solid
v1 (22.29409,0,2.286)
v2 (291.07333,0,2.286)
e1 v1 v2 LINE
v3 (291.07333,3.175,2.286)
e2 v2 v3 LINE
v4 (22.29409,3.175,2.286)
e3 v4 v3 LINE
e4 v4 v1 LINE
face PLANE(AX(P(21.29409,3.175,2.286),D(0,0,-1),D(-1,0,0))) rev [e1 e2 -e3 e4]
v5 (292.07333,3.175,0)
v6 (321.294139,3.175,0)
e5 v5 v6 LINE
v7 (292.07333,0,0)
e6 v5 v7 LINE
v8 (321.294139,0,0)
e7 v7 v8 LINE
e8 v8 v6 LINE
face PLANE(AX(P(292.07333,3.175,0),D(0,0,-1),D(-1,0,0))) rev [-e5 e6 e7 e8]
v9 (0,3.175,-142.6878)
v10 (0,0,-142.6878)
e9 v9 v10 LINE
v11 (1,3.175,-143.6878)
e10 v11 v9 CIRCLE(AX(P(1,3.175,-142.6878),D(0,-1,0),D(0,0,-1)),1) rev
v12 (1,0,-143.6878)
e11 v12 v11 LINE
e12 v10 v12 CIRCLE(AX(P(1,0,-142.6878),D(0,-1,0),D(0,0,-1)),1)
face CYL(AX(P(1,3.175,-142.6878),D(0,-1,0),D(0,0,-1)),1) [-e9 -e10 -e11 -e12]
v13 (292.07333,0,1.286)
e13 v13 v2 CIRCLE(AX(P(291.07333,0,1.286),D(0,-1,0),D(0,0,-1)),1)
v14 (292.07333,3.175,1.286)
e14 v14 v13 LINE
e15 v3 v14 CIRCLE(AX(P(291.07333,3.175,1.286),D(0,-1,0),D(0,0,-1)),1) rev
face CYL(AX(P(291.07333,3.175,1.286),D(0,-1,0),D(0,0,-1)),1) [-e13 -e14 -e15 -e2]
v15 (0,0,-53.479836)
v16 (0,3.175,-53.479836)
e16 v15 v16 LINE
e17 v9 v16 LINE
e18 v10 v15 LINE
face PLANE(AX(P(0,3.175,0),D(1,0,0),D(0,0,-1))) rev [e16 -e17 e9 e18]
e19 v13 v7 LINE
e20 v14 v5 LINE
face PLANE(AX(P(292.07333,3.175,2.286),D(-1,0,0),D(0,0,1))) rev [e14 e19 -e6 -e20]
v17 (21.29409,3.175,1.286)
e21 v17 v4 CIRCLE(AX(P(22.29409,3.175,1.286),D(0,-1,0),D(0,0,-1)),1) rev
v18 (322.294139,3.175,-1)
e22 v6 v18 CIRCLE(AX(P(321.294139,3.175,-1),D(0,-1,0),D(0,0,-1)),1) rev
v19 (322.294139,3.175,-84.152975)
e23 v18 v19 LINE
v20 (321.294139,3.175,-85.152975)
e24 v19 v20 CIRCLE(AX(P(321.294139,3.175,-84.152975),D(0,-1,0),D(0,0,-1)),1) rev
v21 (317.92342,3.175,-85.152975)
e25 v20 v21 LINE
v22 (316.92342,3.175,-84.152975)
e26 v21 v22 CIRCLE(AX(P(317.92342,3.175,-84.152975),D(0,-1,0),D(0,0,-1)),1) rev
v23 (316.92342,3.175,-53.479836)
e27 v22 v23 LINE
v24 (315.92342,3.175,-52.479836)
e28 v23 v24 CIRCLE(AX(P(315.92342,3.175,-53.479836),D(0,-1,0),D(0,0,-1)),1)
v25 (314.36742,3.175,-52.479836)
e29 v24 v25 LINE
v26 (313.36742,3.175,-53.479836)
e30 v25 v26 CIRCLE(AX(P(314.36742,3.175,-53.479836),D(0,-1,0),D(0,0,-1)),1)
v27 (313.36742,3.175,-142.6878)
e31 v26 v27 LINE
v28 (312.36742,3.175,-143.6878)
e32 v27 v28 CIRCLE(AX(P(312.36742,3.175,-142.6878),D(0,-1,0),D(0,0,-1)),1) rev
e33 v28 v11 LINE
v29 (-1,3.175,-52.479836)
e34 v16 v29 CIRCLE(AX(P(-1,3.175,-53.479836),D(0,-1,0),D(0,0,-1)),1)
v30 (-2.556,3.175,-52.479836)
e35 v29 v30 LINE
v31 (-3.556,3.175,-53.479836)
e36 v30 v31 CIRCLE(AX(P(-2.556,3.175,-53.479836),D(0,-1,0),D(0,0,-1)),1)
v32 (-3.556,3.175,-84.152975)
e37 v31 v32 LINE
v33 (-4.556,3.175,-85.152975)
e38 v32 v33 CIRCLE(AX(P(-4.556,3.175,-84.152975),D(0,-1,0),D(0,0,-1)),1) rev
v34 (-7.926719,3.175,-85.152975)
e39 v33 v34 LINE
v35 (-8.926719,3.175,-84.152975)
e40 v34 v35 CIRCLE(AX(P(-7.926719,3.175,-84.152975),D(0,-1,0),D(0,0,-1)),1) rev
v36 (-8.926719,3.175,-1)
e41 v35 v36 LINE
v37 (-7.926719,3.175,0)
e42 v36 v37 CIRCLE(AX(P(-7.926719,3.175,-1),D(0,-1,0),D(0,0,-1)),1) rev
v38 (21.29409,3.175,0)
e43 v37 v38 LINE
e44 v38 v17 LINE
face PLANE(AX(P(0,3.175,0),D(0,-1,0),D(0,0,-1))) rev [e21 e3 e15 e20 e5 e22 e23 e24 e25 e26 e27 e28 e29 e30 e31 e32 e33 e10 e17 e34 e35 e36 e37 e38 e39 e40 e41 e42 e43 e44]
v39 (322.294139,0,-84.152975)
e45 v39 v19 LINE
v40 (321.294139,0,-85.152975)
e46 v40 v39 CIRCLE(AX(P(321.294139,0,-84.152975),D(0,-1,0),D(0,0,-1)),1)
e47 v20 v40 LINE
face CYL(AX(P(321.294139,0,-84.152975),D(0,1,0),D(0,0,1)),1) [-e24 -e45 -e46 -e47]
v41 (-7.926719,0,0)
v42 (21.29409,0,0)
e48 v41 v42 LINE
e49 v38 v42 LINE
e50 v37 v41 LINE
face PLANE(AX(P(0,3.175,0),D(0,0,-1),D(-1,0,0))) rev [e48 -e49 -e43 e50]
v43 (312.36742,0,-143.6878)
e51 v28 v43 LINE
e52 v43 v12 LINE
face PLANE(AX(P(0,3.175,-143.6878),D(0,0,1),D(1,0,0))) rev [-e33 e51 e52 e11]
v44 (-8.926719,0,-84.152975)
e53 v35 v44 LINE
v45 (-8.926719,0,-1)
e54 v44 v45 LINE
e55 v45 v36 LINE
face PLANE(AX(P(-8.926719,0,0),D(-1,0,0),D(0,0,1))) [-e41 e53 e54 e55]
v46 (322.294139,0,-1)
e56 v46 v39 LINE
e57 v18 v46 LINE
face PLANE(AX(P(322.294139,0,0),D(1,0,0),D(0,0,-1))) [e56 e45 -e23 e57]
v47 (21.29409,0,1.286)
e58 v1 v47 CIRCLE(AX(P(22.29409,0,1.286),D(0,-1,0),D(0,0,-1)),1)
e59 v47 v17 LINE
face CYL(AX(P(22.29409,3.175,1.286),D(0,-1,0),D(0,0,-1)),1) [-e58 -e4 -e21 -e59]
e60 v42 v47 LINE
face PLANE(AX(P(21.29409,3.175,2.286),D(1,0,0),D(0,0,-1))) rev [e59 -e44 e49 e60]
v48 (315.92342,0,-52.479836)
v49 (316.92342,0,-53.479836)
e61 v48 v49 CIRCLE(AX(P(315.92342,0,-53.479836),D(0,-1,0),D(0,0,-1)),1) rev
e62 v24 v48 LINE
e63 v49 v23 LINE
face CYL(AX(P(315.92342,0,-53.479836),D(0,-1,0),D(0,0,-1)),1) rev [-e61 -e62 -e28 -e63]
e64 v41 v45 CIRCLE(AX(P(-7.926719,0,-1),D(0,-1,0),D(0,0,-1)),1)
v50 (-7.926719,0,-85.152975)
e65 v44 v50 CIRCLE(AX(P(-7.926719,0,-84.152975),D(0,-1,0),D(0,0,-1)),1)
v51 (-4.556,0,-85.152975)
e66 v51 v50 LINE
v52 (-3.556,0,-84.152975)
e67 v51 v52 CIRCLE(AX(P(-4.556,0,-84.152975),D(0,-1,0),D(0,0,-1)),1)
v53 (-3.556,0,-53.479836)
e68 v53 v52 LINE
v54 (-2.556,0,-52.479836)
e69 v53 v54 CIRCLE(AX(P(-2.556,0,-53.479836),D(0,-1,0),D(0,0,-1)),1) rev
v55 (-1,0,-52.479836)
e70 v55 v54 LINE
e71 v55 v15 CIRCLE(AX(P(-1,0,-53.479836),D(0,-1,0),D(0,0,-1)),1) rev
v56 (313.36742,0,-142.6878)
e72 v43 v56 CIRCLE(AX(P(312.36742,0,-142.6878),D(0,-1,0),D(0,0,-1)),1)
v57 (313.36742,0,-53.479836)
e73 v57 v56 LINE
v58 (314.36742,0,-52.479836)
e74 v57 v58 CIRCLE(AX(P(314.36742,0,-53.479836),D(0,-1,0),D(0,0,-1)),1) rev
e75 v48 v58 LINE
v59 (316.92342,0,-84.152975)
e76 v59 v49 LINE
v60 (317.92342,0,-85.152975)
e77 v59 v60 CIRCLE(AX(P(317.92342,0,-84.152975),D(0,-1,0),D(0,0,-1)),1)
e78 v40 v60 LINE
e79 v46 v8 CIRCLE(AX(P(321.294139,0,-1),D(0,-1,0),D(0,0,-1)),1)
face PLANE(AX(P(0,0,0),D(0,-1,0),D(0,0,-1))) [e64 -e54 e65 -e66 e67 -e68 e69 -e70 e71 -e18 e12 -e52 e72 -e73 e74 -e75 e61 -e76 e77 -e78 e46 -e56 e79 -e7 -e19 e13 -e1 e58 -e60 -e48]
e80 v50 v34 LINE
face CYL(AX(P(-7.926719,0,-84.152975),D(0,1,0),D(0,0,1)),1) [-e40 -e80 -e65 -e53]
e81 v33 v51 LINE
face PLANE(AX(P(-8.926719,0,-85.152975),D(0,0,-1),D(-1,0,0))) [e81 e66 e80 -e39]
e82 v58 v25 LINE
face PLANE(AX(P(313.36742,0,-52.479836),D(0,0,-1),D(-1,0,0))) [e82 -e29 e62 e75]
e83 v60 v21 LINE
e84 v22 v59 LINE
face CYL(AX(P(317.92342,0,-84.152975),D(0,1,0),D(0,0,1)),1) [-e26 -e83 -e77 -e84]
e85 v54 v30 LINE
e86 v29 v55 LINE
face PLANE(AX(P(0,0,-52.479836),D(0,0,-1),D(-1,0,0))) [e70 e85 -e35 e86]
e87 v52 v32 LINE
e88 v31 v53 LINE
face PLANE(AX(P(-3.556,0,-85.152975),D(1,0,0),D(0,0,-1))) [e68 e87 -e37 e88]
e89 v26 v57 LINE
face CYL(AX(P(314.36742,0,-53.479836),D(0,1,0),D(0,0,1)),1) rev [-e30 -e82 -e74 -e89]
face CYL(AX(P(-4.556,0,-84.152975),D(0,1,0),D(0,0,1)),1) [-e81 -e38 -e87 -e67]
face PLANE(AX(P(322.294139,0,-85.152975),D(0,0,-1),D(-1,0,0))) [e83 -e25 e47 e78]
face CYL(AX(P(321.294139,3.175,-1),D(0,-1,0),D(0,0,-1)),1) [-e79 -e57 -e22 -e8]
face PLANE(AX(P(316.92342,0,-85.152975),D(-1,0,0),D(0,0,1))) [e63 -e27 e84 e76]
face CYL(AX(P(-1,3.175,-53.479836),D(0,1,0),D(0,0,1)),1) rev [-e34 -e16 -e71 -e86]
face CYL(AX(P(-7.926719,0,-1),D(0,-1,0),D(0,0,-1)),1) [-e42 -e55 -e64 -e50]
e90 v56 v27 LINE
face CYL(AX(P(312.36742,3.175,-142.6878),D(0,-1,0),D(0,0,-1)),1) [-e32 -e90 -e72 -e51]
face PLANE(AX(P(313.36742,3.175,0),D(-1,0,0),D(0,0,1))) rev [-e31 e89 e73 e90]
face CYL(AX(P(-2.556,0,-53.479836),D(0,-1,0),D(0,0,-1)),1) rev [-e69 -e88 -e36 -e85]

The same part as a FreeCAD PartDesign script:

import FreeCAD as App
import Part
import Sketcher

V = App.Vector
Q = App.Units.Quantity


def edges_at(feature, points):
    """Names of the edges that pass closest to the given points."""
    edges = feature.Shape.Edges
    near = lambda p: min(range(len(edges)), key=lambda i: edges[i].distToShape(Part.Vertex(*p))[0])
    return sorted({f"Edge{near(p) + 1}" for p in points})


def add_polygon(sketch, points):
    """Adds a closed chain of lines whose ends are joined by coincident constraints."""
    first, n = sketch.GeometryCount, len(points)
    for a, b in zip(points, points[1:] + points[:1]):
        sketch.addGeometry(Part.LineSegment(App.Vector(*a, 0), App.Vector(*b, 0)), False)
    for i in range(n):
        sketch.addConstraint(Sketcher.Constraint("Coincident", first + i, 2, first + (i + 1) % n, 1))

doc = App.newDocument("Part")
body = doc.addObject("PartDesign::Body", "Body")

sketch1 = body.newObject("Sketcher::SketchObject", "Sketch")
sketch1.AttachmentSupport = (doc.getObject("XZ_Plane"), [""])
sketch1.MapMode = "FlatFace"
add_polygon(sketch1, [(292.07333, 0), (313.36742, 0), (313.36742, -143.6878), (0, -143.6878), (0, 0), (21.29409, 0), (21.29409, 2.286), (292.07333, 2.286)])
sketch1.addConstraint(Sketcher.Constraint("Horizontal", 0))
sketch1.addConstraint(Sketcher.Constraint("Vertical", 1))
sketch1.addConstraint(Sketcher.Constraint("Horizontal", 2))
sketch1.addConstraint(Sketcher.Constraint("Vertical", 3))
sketch1.addConstraint(Sketcher.Constraint("Horizontal", 4))
sketch1.addConstraint(Sketcher.Constraint("Vertical", 5))
sketch1.addConstraint(Sketcher.Constraint("Horizontal", 6))
sketch1.addConstraint(Sketcher.Constraint("Vertical", 7))
sketch1.addConstraint(Sketcher.Constraint("Coincident", 3, 2, -1, 1))
sketch1.addConstraint(Sketcher.Constraint("PointOnObject", 0, 2, -1))
sketch1.addConstraint(Sketcher.Constraint("Equal", 0, 4))
sketch1.addConstraint(Sketcher.Constraint("DistanceY", 5, 1, 5, 2, Q("0.09 in")))
sketch1.addConstraint(Sketcher.Constraint("DistanceY", 1, 2, 1, 1, Q("5.657 in")))
sketch1.addConstraint(Sketcher.Constraint("DistanceX", 2, 2, 2, 1, Q("12.3373 in")))
sketch1.addConstraint(Sketcher.Constraint("DistanceX", 6, 1, 6, 2, Q("10.6606 in")))
pad1 = body.newObject("PartDesign::Pad", "Pad")
pad1.Profile = sketch1
pad1.Length = Q("0.125 in")
pad1.Reversed = True

sketch2 = body.newObject("Sketcher::SketchObject", "Sketch001")
sketch2.AttachmentSupport = (doc.getObject("XZ_Plane"), [""])
sketch2.MapMode = "FlatFace"
sketch2.AttachmentOffset = App.Placement(V(0, 0, -0.125 * 25.4), App.Rotation())
add_polygon(sketch2, [(-8.926719, 0), (0, 0), (0, -52.479836), (-3.556, -52.479836), (-3.556, -85.152975), (-8.926719, -85.152975)])
add_polygon(sketch2, [(316.92342, -52.479836), (313.36742, -52.479836), (313.36742, 0), (322.294139, 0), (322.294139, -85.152975), (316.92342, -85.152975)])
sketch2.addConstraint(Sketcher.Constraint("Horizontal", 0))
sketch2.addConstraint(Sketcher.Constraint("Vertical", 1))
sketch2.addConstraint(Sketcher.Constraint("Horizontal", 2))
sketch2.addConstraint(Sketcher.Constraint("Vertical", 3))
sketch2.addConstraint(Sketcher.Constraint("Horizontal", 4))
sketch2.addConstraint(Sketcher.Constraint("Vertical", 5))
sketch2.addConstraint(Sketcher.Constraint("Horizontal", 6))
sketch2.addConstraint(Sketcher.Constraint("Vertical", 7))
sketch2.addConstraint(Sketcher.Constraint("Horizontal", 8))
sketch2.addConstraint(Sketcher.Constraint("Vertical", 9))
sketch2.addConstraint(Sketcher.Constraint("Horizontal", 10))
sketch2.addConstraint(Sketcher.Constraint("Vertical", 11))
sketch2.addConstraint(Sketcher.Constraint("Coincident", 0, 2, -1, 1))
sketch2.addConstraint(Sketcher.Constraint("PointOnObject", 7, 2, -1))
sketch2.addConstraint(Sketcher.Constraint("Horizontal", 2, 2, 6, 2))
sketch2.addConstraint(Sketcher.Constraint("Horizontal", 4, 2, 9, 2))
sketch2.addConstraint(Sketcher.Constraint("Equal", 2, 6))
sketch2.addConstraint(Sketcher.Constraint("Equal", 0, 8))
sketch2.addConstraint(Sketcher.Constraint("DistanceX", 2, 2, 2, 1, Q("0.14 in")))
sketch2.addConstraint(Sketcher.Constraint("DistanceX", -1, 1, 6, 2, Q("12.3373 in")))
sketch2.addConstraint(Sketcher.Constraint("DistanceX", 0, 1, 0, 2, 8.926719))
sketch2.addConstraint(Sketcher.Constraint("DistanceY", 3, 2, 3, 1, 32.673139))
sketch2.addConstraint(Sketcher.Constraint("DistanceY", 1, 2, 1, 1, 52.479836))
pad2 = body.newObject("PartDesign::Pad", "Pad001")
pad2.Profile = sketch2
pad2.Type = "UpToLast"
doc.recompute()

fillet = body.newObject("PartDesign::Fillet", "Fillet")
fillet.Base = (pad2, edges_at(pad2, [
    (0, 1.587, -143.688),
    (313.367, 1.587, -143.688),
    (292.073, 1.587, 2.286),
    (21.294, 1.587, 2.286),
    (0, 1.587, -52.48),
    (-8.927, 1.587, 0),
    (-8.927, 1.587, -85.153),
    (-3.556, 1.587, -85.153),
    (-3.556, 1.587, -52.48),
    (313.367, 1.587, -52.48),
    (316.923, 1.587, -52.48),
    (316.923, 1.587, -85.153),
    (322.294, 1.587, -85.153),
    (322.294, 1.587, 0),
]))
fillet.Radius = 1

doc.recompute()
